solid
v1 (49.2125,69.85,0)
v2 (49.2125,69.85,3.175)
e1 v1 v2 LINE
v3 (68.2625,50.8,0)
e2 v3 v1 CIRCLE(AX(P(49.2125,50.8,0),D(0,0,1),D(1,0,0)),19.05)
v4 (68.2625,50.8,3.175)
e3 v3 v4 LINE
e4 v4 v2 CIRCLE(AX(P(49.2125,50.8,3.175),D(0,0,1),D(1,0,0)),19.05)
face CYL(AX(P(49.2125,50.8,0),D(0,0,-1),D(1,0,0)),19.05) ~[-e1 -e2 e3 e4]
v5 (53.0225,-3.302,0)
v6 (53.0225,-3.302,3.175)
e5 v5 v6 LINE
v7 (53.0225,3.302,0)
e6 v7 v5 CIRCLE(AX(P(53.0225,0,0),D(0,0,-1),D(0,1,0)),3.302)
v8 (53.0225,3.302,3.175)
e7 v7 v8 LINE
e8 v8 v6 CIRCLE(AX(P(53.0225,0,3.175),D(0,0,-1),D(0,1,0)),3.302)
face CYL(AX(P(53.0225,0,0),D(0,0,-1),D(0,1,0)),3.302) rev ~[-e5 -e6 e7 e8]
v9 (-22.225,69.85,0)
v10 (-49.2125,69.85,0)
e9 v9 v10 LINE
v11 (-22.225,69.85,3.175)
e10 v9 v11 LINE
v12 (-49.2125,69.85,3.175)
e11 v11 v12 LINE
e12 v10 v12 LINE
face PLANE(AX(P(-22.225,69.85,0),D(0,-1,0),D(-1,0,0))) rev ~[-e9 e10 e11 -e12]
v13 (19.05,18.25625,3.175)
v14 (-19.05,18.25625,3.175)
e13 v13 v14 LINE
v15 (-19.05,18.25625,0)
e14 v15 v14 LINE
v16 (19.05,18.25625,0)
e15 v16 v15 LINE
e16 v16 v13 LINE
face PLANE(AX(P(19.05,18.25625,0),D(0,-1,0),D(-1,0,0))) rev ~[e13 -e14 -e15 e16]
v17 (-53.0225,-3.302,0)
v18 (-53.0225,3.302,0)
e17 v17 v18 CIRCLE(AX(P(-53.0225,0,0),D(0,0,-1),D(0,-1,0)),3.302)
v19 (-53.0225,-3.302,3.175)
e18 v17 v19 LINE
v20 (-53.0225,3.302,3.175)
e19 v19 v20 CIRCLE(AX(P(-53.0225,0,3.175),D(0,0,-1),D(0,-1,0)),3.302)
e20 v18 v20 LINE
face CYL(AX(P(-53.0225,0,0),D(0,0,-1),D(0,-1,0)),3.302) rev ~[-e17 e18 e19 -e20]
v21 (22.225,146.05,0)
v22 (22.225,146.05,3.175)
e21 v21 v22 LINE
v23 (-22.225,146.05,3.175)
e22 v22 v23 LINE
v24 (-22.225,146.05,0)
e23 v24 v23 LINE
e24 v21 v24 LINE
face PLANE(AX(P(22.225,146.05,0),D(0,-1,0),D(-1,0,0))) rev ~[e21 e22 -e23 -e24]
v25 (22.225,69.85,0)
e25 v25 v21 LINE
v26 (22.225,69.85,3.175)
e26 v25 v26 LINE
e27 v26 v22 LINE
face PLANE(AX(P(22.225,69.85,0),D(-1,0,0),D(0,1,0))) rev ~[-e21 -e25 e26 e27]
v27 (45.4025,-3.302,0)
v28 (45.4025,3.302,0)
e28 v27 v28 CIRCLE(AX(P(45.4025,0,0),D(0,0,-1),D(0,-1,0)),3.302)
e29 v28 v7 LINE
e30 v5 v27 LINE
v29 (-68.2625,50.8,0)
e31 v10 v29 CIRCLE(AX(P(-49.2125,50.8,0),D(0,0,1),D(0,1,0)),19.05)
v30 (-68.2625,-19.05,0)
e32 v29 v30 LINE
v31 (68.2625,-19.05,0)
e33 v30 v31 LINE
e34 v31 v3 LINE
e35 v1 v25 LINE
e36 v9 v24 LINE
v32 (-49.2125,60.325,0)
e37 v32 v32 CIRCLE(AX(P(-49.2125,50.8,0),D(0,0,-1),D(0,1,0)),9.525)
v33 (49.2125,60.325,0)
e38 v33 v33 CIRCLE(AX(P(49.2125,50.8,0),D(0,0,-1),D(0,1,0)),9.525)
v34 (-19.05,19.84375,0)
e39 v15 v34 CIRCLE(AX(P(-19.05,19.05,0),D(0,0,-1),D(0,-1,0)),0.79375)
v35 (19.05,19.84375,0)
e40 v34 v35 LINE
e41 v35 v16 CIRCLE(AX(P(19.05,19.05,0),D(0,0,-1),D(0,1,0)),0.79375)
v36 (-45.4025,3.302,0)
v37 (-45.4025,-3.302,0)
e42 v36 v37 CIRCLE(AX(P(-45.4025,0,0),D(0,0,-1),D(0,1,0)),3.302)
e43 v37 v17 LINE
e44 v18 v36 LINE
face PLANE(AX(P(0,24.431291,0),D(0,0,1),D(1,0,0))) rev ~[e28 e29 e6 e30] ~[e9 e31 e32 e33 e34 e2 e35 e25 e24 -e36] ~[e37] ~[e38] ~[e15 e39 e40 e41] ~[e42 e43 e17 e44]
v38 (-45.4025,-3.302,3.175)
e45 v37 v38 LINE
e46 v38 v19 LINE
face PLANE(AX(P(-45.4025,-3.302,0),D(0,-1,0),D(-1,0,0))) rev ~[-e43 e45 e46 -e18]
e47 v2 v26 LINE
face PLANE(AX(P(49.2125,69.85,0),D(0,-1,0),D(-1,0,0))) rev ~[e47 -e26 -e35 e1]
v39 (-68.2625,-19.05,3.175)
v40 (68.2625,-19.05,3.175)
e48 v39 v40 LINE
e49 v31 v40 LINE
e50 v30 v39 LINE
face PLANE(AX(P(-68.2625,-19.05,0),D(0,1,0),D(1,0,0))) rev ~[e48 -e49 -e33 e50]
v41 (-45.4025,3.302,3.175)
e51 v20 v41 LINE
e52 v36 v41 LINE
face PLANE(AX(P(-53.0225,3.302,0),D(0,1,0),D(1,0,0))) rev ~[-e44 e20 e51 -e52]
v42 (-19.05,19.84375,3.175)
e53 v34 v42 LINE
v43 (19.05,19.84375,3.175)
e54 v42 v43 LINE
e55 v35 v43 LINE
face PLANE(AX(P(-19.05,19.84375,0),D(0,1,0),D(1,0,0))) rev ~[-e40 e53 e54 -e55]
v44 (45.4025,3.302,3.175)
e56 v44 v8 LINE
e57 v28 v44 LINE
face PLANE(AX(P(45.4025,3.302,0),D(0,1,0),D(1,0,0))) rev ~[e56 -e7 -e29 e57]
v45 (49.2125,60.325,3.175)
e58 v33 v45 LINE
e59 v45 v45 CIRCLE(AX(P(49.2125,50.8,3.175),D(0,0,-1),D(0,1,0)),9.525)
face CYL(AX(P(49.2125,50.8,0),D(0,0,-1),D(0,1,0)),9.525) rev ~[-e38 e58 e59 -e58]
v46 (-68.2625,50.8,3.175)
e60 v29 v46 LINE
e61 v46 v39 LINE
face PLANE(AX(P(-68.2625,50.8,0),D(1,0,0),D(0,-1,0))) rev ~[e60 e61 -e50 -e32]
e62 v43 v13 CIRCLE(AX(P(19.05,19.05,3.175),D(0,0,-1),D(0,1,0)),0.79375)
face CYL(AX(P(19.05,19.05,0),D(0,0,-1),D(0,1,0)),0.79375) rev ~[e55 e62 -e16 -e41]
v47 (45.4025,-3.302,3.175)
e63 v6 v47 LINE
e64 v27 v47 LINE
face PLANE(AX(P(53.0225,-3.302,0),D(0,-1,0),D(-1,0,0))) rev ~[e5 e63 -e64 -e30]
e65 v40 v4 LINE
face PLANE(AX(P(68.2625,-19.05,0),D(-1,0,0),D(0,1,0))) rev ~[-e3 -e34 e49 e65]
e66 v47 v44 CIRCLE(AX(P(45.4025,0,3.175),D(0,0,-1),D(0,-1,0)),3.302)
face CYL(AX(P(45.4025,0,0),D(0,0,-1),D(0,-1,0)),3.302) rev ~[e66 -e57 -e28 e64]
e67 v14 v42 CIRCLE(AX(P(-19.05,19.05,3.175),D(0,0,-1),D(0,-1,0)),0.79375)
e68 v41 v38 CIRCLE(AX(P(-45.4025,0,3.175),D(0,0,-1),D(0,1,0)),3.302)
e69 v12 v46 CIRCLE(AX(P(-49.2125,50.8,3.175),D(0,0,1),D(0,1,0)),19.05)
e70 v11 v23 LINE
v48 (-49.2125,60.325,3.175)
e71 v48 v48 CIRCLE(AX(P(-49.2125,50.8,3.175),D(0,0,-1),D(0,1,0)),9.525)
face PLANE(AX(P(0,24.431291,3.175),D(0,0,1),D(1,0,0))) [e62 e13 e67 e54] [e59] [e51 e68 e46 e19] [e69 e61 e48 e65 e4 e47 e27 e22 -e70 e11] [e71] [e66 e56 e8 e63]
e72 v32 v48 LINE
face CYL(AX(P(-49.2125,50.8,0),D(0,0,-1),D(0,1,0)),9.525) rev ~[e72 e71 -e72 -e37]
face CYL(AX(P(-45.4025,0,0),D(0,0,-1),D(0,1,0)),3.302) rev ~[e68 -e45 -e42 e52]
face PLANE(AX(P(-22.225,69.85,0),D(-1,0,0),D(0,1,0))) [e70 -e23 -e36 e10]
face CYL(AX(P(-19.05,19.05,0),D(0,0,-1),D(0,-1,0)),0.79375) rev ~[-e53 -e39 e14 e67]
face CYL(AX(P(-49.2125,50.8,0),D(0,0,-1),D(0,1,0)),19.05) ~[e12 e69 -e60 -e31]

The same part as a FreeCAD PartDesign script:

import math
import FreeCAD as App
import Part
import Sketcher
from FreeCAD import Vector
Q = App.Units.Quantity

doc = App.newDocument("Part")
body = doc.addObject("PartDesign::Body", "Body")

sketch1 = doc.addObject("Sketcher::SketchObject", "Sketch")
body.addObject(sketch1)
sketch1.AttachmentSupport = (doc.XY_Plane, [""])
sketch1.MapMode = "FlatFace"
sketch1.addGeometry([
    Part.LineSegment(Vector(-68.3, -19.1, 0), Vector(68.3, -19.1, 0)),
    Part.LineSegment(Vector(68.3, -19.1, 0), Vector(68.3, 50.8, 0)),
    Part.ArcOfCircle(Part.Circle(Vector(49.2, 50.8, 0), Vector(0, 0, 1), 19.1), math.radians(0), math.radians(90)),
    Part.LineSegment(Vector(49.2, 69.8, 0), Vector(22.2, 69.8, 0)),
    Part.LineSegment(Vector(22.2, 69.8, 0), Vector(22.2, 146.1, 0)),
    Part.LineSegment(Vector(22.2, 146.1, 0), Vector(-22.2, 146.1, 0)),
    Part.LineSegment(Vector(-22.2, 146.1, 0), Vector(-22.2, 69.8, 0)),
    Part.LineSegment(Vector(-22.2, 69.8, 0), Vector(-49.2, 69.8, 0)),
    Part.ArcOfCircle(Part.Circle(Vector(-49.2, 50.8, 0), Vector(0, 0, 1), 19.1), math.radians(90), math.radians(180)),
    Part.LineSegment(Vector(-68.3, 50.8, 0), Vector(-68.3, -19.1, 0)),
    Part.Circle(Vector(-49.2, 50.8, 0), Vector(0, 0, 1), 9.5),
    Part.Circle(Vector(49.2, 50.8, 0), Vector(0, 0, 1), 9.5),
    Part.ArcOfCircle(Part.Circle(Vector(-45.4, 0, 0), Vector(0, 0, 1), 3.3), math.radians(-90), math.radians(90)),
    Part.LineSegment(Vector(-45.4, -3.3, 0), Vector(-53, -3.3, 0)),
    Part.ArcOfCircle(Part.Circle(Vector(-53, 0, 0), Vector(0, 0, 1), 3.3), math.radians(90), math.radians(270)),
    Part.LineSegment(Vector(-53, 3.3, 0), Vector(-45.4, 3.3, 0)),
    Part.ArcOfCircle(Part.Circle(Vector(45.4, 0, 0), Vector(0, 0, 1), 3.3), math.radians(90), math.radians(270)),
    Part.LineSegment(Vector(45.4, 3.3, 0), Vector(53, 3.3, 0)),
    Part.ArcOfCircle(Part.Circle(Vector(53, 0, 0), Vector(0, 0, 1), 3.3), math.radians(-90), math.radians(90)),
    Part.LineSegment(Vector(53, -3.3, 0), Vector(45.4, -3.3, 0)),
    Part.ArcOfCircle(Part.Circle(Vector(19.1, 19.1, 0), Vector(0, 0, 1), 0.8), math.radians(-90), math.radians(90)),
    Part.LineSegment(Vector(19.1, 18.3, 0), Vector(-19.1, 18.3, 0)),
    Part.ArcOfCircle(Part.Circle(Vector(-19.1, 19.1, 0), Vector(0, 0, 1), 0.8), math.radians(90), math.radians(270)),
    Part.LineSegment(Vector(-19.1, 19.8, 0), Vector(19.1, 19.8, 0)),
], False)
sketch1.addConstraint([
    Sketcher.Constraint("Coincident", 0, 2, 1, 1),
    Sketcher.Constraint("Tangent", 1, 2, 2, 1),
    Sketcher.Constraint("Tangent", 2, 2, 3, 1),
    Sketcher.Constraint("Coincident", 3, 2, 4, 1),
    Sketcher.Constraint("Coincident", 4, 2, 5, 1),
    Sketcher.Constraint("Coincident", 5, 2, 6, 1),
    Sketcher.Constraint("Coincident", 6, 2, 7, 1),
    Sketcher.Constraint("Tangent", 7, 2, 8, 1),
    Sketcher.Constraint("Tangent", 8, 2, 9, 1),
    Sketcher.Constraint("Coincident", 9, 2, 0, 1),
    Sketcher.Constraint("Tangent", 12, 1, 13, 1),
    Sketcher.Constraint("Tangent", 13, 2, 14, 2),
    Sketcher.Constraint("Tangent", 14, 1, 15, 1),
    Sketcher.Constraint("Tangent", 15, 2, 12, 2),
    Sketcher.Constraint("Tangent", 16, 1, 17, 1),
    Sketcher.Constraint("Tangent", 17, 2, 18, 2),
    Sketcher.Constraint("Tangent", 18, 1, 19, 1),
    Sketcher.Constraint("Tangent", 19, 2, 16, 2),
    Sketcher.Constraint("Tangent", 20, 1, 21, 1),
    Sketcher.Constraint("Tangent", 21, 2, 22, 2),
    Sketcher.Constraint("Tangent", 22, 1, 23, 1),
    Sketcher.Constraint("Tangent", 23, 2, 20, 2),
    Sketcher.Constraint("Horizontal", 0),
    Sketcher.Constraint("Vertical", 1),
    Sketcher.Constraint("Horizontal", 3),
    Sketcher.Constraint("Vertical", 4),
    Sketcher.Constraint("Horizontal", 5),
    Sketcher.Constraint("Vertical", 6),
    Sketcher.Constraint("Horizontal", 7),
    Sketcher.Constraint("Vertical", 9),
    Sketcher.Constraint("Horizontal", 13),
    Sketcher.Constraint("Horizontal", 15),
    Sketcher.Constraint("Horizontal", 17),
    Sketcher.Constraint("Horizontal", 19),
    Sketcher.Constraint("Horizontal", 21),
    Sketcher.Constraint("Horizontal", 23),
    Sketcher.Constraint("Coincident", 10, 3, 8, 3),
    Sketcher.Constraint("Coincident", 11, 3, 2, 3),
    Sketcher.Constraint("Equal", 2, 8),
    Sketcher.Constraint("Equal", 10, 11),
    Sketcher.Constraint("Equal", 14, 16),
    Sketcher.Constraint("Symmetric", 12, 3, 16, 3, -1, 1),
    Sketcher.Constraint("Symmetric", 2, 3, 8, 3, -2),
    Sketcher.Constraint("Symmetric", 14, 3, 18, 3, -2),
    Sketcher.Constraint("Equal", 3, 7),
    Sketcher.Constraint("Diameter", 10, Q("0.75 in")),
    Sketcher.Constraint("DistanceY", 4, 1, 4, 2, Q("3 in")),
    Sketcher.Constraint("Radius", 2, Q("0.75 in")),
    Sketcher.Constraint("Radius", 12, Q("0.13 in")),
    Sketcher.Constraint("DistanceX", 13, 2, 13, 1, Q("0.3 in")),
    Sketcher.Constraint("DistanceX", 21, 2, 21, 1, Q("1.5 in")),
    Sketcher.Constraint("DistanceY", -1, 1, 2, 3, Q("2 in")),
    Sketcher.Constraint("Radius", 20, Q("0.03125 in")),
    Sketcher.Constraint("DistanceY", 20, 3, 2, 2, Q("2 in")),
    Sketcher.Constraint("DistanceX", 5, 2, 5, 1, Q("1.75 in")),
    Sketcher.Constraint("DistanceY", 1, 1, 1, 2, Q("2.75 in")),
    Sketcher.Constraint("DistanceX", 18, 3, 0, 2, Q("0.6 in")),
    Sketcher.Constraint("DistanceX", 0, 1, 0, 2, Q("5.375 in")),
    Sketcher.Constraint("DistanceX", -1, 1, 20, 3, Q("0.75 in")),
])
pad1 = doc.addObject("PartDesign::Pad", "Pad")
body.addObject(pad1)
pad1.Profile = sketch1
pad1.Length = Q("0.125 in")

doc.recompute()
